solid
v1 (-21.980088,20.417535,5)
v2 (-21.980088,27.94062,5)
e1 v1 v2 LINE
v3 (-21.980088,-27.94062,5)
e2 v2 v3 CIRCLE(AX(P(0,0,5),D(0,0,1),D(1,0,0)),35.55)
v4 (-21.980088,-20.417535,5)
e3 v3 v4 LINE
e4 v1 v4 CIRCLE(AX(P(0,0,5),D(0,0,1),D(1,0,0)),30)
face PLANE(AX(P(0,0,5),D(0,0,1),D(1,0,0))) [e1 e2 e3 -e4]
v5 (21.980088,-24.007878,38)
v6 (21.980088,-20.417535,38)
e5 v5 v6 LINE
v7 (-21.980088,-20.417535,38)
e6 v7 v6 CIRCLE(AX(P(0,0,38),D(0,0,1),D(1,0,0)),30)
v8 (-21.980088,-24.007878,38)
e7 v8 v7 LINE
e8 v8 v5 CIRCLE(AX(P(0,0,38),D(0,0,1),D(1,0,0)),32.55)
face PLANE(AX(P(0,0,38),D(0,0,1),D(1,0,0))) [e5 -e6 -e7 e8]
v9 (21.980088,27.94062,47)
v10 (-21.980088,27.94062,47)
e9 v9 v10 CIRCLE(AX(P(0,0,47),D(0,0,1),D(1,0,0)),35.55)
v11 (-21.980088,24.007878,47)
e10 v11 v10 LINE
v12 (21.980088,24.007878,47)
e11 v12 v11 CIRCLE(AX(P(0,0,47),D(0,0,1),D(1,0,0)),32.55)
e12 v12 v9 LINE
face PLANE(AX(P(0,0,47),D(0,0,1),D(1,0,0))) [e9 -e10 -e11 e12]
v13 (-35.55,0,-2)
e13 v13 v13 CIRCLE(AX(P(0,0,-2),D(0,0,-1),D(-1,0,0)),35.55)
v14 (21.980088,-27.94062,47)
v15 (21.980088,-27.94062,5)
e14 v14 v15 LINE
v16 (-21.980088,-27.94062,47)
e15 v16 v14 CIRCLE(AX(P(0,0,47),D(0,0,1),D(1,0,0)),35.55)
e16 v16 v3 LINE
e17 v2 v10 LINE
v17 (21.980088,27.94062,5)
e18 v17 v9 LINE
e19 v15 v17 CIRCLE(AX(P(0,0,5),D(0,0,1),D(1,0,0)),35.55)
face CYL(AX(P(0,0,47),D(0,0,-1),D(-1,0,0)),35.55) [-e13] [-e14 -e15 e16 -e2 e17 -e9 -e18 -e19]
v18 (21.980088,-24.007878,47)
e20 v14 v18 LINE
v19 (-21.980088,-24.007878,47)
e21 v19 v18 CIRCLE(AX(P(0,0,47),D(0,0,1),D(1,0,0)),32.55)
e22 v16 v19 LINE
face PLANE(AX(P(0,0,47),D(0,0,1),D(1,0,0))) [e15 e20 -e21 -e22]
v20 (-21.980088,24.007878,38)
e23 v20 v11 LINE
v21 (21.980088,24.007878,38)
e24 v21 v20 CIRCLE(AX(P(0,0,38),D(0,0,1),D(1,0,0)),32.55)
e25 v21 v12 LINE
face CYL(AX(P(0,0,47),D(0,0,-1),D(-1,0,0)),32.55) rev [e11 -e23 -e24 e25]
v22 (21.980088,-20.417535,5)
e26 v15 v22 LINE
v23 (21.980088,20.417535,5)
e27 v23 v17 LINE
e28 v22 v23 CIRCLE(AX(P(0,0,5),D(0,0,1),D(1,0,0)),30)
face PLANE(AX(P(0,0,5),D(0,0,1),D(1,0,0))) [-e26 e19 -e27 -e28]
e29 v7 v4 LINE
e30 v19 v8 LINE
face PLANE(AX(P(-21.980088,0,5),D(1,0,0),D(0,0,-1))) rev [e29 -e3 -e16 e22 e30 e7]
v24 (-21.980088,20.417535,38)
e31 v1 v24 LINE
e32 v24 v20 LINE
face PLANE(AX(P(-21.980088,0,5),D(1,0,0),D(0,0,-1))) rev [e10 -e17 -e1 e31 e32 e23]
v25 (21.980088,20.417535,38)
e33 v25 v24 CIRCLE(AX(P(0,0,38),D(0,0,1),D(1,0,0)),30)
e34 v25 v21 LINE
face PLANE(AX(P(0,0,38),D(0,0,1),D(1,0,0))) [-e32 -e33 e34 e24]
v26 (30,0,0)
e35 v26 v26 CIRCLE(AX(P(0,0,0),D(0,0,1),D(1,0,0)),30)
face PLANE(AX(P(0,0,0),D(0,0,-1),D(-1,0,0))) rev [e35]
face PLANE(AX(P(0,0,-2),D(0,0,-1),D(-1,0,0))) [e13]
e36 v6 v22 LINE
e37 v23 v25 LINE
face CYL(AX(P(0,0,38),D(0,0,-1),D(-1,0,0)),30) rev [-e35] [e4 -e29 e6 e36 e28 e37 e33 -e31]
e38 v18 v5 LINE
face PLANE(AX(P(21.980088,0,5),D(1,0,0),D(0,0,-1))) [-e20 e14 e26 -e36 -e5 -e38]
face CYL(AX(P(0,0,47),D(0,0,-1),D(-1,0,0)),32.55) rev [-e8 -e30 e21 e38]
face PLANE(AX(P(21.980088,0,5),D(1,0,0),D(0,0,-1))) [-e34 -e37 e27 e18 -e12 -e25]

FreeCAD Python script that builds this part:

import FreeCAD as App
import Part
import Sketcher

V = App.Vector
Q = App.Units.Quantity

doc = App.newDocument("Part")
body = doc.addObject("PartDesign::Body", "Body")

# Sketch on XY plane
sketch1 = body.newObject("Sketcher::SketchObject", "Sketch")
sketch1.AttachmentSupport = (doc.getObject("XY_Plane"), [""])
sketch1.MapMode = "FlatFace"
sketch1.addGeometry([
    Part.Circle(V(0, 0, 0), V(0, 0, 1), 36),
    Part.Circle(V(0, 0, 0), V(0, 0, 1), 33),
], False)
sketch1.addConstraint([
    Sketcher.Constraint("Coincident", 0, 3, -1, 1),
    Sketcher.Constraint("Coincident", 1, 3, -1, 1),
    Sketcher.Constraint("Diameter", 0, Q("71.1 mm")),
    Sketcher.Constraint("Diameter", 1, Q("65.1 mm")),
])
pad1 = body.newObject("PartDesign::Pad", "Pad")
pad1.Profile = sketch1
pad1.Length = 47

# Sketch on XY plane
sketch2 = body.newObject("Sketcher::SketchObject", "Sketch001")
sketch2.AttachmentSupport = (doc.getObject("XY_Plane"), [""])
sketch2.MapMode = "FlatFace"
sketch2.AttachmentOffset = App.Placement(V(0, 0, -2), App.Rotation())
sketch2.addGeometry(Part.Circle(V(0, 0, 0), V(0, 0, 1), 36), False)
sketch2.addConstraint([
    Sketcher.Constraint("Coincident", 0, 3, -1, 1),
    Sketcher.Constraint("Diameter", 0, Q("71.1 mm")),
])
pad2 = body.newObject("PartDesign::Pad", "Pad001")
pad2.Profile = sketch2
pad2.Length = 2

# Sketch on XY plane
sketch3 = body.newObject("Sketcher::SketchObject", "Sketch002")
sketch3.AttachmentSupport = (doc.getObject("XY_Plane"), [""])
sketch3.MapMode = "FlatFace"
sketch3.addGeometry([
    Part.Circle(V(0, 0, 0), V(0, 0, 1), 33),
    Part.Circle(V(0, 0, 0), V(0, 0, 1), 30),
], False)
sketch3.addConstraint([
    Sketcher.Constraint("Coincident", 0, 3, -1, 1),
    Sketcher.Constraint("Coincident", 1, 3, -1, 1),
    Sketcher.Constraint("Diameter", 1, Q("60 mm")),
    Sketcher.Constraint("Diameter", 0, Q("65.1 mm")),
])
pad3 = body.newObject("PartDesign::Pad", "Pad002")
pad3.Profile = sketch3
pad3.Length = 38

# Sketch on XY plane
sketch4 = body.newObject("Sketcher::SketchObject", "Sketch003")
sketch4.AttachmentSupport = (doc.getObject("XY_Plane"), [""])
sketch4.MapMode = "FlatFace"
sketch4.AttachmentOffset = App.Placement(V(0, 0, 5), App.Rotation())
sketch4.addGeometry([
    Part.LineSegment(V(-36, 36, 0), V(-36, -36, 0)),  # 0
    Part.LineSegment(V(-36, -36, 0), V(-22, -36, 0)),  # 1
    Part.LineSegment(V(-22, -36, 0), V(-22, 36, 0)),  # 2
    Part.LineSegment(V(-22, 36, 0), V(-36, 36, 0)),  # 3
    Part.LineSegment(V(22, -36, 0), V(36, -36, 0)),  # 4
    Part.LineSegment(V(36, -36, 0), V(36, 36, 0)),  # 5
    Part.LineSegment(V(36, 36, 0), V(22, 36, 0)),  # 6
    Part.LineSegment(V(22, 36, 0), V(22, -36, 0)),  # 7
], False)
sketch4.addConstraint([
    Sketcher.Constraint("Coincident", 0, 2, 1, 1),
    Sketcher.Constraint("Coincident", 1, 2, 2, 1),
    Sketcher.Constraint("Coincident", 2, 2, 3, 1),
    Sketcher.Constraint("Coincident", 3, 2, 0, 1),
    Sketcher.Constraint("Coincident", 4, 2, 5, 1),
    Sketcher.Constraint("Coincident", 5, 2, 6, 1),
    Sketcher.Constraint("Coincident", 6, 2, 7, 1),
    Sketcher.Constraint("Coincident", 7, 2, 4, 1),
    Sketcher.Constraint("Vertical", 0),
    Sketcher.Constraint("Horizontal", 1),
    Sketcher.Constraint("Vertical", 2),
    Sketcher.Constraint("Horizontal", 3),
    Sketcher.Constraint("Horizontal", 4),
    Sketcher.Constraint("Vertical", 5),
    Sketcher.Constraint("Horizontal", 6),
    Sketcher.Constraint("Vertical", 7),
    Sketcher.Constraint("Symmetric", 3, 2, 4, 2, -1, 1),
    Sketcher.Constraint("Symmetric", 1, 2, 6, 2, -1, 1),
    Sketcher.Constraint("Horizontal", 1, 2, 4, 2),
    Sketcher.Constraint("DistanceY", 0, 2, 0, 1, Q("71.1 mm")),
    Sketcher.Constraint("DistanceX", 0, 2, 4, 2, Q("71.1 mm")),
    Sketcher.Constraint("DistanceX", 1, 1, 1, 2, Q("13.569912 mm")),
])
pocket1 = body.newObject("PartDesign::Pocket", "Pocket")
pocket1.Profile = sketch4
pocket1.Length = 42
pocket1.Reversed = True

doc.recompute()
